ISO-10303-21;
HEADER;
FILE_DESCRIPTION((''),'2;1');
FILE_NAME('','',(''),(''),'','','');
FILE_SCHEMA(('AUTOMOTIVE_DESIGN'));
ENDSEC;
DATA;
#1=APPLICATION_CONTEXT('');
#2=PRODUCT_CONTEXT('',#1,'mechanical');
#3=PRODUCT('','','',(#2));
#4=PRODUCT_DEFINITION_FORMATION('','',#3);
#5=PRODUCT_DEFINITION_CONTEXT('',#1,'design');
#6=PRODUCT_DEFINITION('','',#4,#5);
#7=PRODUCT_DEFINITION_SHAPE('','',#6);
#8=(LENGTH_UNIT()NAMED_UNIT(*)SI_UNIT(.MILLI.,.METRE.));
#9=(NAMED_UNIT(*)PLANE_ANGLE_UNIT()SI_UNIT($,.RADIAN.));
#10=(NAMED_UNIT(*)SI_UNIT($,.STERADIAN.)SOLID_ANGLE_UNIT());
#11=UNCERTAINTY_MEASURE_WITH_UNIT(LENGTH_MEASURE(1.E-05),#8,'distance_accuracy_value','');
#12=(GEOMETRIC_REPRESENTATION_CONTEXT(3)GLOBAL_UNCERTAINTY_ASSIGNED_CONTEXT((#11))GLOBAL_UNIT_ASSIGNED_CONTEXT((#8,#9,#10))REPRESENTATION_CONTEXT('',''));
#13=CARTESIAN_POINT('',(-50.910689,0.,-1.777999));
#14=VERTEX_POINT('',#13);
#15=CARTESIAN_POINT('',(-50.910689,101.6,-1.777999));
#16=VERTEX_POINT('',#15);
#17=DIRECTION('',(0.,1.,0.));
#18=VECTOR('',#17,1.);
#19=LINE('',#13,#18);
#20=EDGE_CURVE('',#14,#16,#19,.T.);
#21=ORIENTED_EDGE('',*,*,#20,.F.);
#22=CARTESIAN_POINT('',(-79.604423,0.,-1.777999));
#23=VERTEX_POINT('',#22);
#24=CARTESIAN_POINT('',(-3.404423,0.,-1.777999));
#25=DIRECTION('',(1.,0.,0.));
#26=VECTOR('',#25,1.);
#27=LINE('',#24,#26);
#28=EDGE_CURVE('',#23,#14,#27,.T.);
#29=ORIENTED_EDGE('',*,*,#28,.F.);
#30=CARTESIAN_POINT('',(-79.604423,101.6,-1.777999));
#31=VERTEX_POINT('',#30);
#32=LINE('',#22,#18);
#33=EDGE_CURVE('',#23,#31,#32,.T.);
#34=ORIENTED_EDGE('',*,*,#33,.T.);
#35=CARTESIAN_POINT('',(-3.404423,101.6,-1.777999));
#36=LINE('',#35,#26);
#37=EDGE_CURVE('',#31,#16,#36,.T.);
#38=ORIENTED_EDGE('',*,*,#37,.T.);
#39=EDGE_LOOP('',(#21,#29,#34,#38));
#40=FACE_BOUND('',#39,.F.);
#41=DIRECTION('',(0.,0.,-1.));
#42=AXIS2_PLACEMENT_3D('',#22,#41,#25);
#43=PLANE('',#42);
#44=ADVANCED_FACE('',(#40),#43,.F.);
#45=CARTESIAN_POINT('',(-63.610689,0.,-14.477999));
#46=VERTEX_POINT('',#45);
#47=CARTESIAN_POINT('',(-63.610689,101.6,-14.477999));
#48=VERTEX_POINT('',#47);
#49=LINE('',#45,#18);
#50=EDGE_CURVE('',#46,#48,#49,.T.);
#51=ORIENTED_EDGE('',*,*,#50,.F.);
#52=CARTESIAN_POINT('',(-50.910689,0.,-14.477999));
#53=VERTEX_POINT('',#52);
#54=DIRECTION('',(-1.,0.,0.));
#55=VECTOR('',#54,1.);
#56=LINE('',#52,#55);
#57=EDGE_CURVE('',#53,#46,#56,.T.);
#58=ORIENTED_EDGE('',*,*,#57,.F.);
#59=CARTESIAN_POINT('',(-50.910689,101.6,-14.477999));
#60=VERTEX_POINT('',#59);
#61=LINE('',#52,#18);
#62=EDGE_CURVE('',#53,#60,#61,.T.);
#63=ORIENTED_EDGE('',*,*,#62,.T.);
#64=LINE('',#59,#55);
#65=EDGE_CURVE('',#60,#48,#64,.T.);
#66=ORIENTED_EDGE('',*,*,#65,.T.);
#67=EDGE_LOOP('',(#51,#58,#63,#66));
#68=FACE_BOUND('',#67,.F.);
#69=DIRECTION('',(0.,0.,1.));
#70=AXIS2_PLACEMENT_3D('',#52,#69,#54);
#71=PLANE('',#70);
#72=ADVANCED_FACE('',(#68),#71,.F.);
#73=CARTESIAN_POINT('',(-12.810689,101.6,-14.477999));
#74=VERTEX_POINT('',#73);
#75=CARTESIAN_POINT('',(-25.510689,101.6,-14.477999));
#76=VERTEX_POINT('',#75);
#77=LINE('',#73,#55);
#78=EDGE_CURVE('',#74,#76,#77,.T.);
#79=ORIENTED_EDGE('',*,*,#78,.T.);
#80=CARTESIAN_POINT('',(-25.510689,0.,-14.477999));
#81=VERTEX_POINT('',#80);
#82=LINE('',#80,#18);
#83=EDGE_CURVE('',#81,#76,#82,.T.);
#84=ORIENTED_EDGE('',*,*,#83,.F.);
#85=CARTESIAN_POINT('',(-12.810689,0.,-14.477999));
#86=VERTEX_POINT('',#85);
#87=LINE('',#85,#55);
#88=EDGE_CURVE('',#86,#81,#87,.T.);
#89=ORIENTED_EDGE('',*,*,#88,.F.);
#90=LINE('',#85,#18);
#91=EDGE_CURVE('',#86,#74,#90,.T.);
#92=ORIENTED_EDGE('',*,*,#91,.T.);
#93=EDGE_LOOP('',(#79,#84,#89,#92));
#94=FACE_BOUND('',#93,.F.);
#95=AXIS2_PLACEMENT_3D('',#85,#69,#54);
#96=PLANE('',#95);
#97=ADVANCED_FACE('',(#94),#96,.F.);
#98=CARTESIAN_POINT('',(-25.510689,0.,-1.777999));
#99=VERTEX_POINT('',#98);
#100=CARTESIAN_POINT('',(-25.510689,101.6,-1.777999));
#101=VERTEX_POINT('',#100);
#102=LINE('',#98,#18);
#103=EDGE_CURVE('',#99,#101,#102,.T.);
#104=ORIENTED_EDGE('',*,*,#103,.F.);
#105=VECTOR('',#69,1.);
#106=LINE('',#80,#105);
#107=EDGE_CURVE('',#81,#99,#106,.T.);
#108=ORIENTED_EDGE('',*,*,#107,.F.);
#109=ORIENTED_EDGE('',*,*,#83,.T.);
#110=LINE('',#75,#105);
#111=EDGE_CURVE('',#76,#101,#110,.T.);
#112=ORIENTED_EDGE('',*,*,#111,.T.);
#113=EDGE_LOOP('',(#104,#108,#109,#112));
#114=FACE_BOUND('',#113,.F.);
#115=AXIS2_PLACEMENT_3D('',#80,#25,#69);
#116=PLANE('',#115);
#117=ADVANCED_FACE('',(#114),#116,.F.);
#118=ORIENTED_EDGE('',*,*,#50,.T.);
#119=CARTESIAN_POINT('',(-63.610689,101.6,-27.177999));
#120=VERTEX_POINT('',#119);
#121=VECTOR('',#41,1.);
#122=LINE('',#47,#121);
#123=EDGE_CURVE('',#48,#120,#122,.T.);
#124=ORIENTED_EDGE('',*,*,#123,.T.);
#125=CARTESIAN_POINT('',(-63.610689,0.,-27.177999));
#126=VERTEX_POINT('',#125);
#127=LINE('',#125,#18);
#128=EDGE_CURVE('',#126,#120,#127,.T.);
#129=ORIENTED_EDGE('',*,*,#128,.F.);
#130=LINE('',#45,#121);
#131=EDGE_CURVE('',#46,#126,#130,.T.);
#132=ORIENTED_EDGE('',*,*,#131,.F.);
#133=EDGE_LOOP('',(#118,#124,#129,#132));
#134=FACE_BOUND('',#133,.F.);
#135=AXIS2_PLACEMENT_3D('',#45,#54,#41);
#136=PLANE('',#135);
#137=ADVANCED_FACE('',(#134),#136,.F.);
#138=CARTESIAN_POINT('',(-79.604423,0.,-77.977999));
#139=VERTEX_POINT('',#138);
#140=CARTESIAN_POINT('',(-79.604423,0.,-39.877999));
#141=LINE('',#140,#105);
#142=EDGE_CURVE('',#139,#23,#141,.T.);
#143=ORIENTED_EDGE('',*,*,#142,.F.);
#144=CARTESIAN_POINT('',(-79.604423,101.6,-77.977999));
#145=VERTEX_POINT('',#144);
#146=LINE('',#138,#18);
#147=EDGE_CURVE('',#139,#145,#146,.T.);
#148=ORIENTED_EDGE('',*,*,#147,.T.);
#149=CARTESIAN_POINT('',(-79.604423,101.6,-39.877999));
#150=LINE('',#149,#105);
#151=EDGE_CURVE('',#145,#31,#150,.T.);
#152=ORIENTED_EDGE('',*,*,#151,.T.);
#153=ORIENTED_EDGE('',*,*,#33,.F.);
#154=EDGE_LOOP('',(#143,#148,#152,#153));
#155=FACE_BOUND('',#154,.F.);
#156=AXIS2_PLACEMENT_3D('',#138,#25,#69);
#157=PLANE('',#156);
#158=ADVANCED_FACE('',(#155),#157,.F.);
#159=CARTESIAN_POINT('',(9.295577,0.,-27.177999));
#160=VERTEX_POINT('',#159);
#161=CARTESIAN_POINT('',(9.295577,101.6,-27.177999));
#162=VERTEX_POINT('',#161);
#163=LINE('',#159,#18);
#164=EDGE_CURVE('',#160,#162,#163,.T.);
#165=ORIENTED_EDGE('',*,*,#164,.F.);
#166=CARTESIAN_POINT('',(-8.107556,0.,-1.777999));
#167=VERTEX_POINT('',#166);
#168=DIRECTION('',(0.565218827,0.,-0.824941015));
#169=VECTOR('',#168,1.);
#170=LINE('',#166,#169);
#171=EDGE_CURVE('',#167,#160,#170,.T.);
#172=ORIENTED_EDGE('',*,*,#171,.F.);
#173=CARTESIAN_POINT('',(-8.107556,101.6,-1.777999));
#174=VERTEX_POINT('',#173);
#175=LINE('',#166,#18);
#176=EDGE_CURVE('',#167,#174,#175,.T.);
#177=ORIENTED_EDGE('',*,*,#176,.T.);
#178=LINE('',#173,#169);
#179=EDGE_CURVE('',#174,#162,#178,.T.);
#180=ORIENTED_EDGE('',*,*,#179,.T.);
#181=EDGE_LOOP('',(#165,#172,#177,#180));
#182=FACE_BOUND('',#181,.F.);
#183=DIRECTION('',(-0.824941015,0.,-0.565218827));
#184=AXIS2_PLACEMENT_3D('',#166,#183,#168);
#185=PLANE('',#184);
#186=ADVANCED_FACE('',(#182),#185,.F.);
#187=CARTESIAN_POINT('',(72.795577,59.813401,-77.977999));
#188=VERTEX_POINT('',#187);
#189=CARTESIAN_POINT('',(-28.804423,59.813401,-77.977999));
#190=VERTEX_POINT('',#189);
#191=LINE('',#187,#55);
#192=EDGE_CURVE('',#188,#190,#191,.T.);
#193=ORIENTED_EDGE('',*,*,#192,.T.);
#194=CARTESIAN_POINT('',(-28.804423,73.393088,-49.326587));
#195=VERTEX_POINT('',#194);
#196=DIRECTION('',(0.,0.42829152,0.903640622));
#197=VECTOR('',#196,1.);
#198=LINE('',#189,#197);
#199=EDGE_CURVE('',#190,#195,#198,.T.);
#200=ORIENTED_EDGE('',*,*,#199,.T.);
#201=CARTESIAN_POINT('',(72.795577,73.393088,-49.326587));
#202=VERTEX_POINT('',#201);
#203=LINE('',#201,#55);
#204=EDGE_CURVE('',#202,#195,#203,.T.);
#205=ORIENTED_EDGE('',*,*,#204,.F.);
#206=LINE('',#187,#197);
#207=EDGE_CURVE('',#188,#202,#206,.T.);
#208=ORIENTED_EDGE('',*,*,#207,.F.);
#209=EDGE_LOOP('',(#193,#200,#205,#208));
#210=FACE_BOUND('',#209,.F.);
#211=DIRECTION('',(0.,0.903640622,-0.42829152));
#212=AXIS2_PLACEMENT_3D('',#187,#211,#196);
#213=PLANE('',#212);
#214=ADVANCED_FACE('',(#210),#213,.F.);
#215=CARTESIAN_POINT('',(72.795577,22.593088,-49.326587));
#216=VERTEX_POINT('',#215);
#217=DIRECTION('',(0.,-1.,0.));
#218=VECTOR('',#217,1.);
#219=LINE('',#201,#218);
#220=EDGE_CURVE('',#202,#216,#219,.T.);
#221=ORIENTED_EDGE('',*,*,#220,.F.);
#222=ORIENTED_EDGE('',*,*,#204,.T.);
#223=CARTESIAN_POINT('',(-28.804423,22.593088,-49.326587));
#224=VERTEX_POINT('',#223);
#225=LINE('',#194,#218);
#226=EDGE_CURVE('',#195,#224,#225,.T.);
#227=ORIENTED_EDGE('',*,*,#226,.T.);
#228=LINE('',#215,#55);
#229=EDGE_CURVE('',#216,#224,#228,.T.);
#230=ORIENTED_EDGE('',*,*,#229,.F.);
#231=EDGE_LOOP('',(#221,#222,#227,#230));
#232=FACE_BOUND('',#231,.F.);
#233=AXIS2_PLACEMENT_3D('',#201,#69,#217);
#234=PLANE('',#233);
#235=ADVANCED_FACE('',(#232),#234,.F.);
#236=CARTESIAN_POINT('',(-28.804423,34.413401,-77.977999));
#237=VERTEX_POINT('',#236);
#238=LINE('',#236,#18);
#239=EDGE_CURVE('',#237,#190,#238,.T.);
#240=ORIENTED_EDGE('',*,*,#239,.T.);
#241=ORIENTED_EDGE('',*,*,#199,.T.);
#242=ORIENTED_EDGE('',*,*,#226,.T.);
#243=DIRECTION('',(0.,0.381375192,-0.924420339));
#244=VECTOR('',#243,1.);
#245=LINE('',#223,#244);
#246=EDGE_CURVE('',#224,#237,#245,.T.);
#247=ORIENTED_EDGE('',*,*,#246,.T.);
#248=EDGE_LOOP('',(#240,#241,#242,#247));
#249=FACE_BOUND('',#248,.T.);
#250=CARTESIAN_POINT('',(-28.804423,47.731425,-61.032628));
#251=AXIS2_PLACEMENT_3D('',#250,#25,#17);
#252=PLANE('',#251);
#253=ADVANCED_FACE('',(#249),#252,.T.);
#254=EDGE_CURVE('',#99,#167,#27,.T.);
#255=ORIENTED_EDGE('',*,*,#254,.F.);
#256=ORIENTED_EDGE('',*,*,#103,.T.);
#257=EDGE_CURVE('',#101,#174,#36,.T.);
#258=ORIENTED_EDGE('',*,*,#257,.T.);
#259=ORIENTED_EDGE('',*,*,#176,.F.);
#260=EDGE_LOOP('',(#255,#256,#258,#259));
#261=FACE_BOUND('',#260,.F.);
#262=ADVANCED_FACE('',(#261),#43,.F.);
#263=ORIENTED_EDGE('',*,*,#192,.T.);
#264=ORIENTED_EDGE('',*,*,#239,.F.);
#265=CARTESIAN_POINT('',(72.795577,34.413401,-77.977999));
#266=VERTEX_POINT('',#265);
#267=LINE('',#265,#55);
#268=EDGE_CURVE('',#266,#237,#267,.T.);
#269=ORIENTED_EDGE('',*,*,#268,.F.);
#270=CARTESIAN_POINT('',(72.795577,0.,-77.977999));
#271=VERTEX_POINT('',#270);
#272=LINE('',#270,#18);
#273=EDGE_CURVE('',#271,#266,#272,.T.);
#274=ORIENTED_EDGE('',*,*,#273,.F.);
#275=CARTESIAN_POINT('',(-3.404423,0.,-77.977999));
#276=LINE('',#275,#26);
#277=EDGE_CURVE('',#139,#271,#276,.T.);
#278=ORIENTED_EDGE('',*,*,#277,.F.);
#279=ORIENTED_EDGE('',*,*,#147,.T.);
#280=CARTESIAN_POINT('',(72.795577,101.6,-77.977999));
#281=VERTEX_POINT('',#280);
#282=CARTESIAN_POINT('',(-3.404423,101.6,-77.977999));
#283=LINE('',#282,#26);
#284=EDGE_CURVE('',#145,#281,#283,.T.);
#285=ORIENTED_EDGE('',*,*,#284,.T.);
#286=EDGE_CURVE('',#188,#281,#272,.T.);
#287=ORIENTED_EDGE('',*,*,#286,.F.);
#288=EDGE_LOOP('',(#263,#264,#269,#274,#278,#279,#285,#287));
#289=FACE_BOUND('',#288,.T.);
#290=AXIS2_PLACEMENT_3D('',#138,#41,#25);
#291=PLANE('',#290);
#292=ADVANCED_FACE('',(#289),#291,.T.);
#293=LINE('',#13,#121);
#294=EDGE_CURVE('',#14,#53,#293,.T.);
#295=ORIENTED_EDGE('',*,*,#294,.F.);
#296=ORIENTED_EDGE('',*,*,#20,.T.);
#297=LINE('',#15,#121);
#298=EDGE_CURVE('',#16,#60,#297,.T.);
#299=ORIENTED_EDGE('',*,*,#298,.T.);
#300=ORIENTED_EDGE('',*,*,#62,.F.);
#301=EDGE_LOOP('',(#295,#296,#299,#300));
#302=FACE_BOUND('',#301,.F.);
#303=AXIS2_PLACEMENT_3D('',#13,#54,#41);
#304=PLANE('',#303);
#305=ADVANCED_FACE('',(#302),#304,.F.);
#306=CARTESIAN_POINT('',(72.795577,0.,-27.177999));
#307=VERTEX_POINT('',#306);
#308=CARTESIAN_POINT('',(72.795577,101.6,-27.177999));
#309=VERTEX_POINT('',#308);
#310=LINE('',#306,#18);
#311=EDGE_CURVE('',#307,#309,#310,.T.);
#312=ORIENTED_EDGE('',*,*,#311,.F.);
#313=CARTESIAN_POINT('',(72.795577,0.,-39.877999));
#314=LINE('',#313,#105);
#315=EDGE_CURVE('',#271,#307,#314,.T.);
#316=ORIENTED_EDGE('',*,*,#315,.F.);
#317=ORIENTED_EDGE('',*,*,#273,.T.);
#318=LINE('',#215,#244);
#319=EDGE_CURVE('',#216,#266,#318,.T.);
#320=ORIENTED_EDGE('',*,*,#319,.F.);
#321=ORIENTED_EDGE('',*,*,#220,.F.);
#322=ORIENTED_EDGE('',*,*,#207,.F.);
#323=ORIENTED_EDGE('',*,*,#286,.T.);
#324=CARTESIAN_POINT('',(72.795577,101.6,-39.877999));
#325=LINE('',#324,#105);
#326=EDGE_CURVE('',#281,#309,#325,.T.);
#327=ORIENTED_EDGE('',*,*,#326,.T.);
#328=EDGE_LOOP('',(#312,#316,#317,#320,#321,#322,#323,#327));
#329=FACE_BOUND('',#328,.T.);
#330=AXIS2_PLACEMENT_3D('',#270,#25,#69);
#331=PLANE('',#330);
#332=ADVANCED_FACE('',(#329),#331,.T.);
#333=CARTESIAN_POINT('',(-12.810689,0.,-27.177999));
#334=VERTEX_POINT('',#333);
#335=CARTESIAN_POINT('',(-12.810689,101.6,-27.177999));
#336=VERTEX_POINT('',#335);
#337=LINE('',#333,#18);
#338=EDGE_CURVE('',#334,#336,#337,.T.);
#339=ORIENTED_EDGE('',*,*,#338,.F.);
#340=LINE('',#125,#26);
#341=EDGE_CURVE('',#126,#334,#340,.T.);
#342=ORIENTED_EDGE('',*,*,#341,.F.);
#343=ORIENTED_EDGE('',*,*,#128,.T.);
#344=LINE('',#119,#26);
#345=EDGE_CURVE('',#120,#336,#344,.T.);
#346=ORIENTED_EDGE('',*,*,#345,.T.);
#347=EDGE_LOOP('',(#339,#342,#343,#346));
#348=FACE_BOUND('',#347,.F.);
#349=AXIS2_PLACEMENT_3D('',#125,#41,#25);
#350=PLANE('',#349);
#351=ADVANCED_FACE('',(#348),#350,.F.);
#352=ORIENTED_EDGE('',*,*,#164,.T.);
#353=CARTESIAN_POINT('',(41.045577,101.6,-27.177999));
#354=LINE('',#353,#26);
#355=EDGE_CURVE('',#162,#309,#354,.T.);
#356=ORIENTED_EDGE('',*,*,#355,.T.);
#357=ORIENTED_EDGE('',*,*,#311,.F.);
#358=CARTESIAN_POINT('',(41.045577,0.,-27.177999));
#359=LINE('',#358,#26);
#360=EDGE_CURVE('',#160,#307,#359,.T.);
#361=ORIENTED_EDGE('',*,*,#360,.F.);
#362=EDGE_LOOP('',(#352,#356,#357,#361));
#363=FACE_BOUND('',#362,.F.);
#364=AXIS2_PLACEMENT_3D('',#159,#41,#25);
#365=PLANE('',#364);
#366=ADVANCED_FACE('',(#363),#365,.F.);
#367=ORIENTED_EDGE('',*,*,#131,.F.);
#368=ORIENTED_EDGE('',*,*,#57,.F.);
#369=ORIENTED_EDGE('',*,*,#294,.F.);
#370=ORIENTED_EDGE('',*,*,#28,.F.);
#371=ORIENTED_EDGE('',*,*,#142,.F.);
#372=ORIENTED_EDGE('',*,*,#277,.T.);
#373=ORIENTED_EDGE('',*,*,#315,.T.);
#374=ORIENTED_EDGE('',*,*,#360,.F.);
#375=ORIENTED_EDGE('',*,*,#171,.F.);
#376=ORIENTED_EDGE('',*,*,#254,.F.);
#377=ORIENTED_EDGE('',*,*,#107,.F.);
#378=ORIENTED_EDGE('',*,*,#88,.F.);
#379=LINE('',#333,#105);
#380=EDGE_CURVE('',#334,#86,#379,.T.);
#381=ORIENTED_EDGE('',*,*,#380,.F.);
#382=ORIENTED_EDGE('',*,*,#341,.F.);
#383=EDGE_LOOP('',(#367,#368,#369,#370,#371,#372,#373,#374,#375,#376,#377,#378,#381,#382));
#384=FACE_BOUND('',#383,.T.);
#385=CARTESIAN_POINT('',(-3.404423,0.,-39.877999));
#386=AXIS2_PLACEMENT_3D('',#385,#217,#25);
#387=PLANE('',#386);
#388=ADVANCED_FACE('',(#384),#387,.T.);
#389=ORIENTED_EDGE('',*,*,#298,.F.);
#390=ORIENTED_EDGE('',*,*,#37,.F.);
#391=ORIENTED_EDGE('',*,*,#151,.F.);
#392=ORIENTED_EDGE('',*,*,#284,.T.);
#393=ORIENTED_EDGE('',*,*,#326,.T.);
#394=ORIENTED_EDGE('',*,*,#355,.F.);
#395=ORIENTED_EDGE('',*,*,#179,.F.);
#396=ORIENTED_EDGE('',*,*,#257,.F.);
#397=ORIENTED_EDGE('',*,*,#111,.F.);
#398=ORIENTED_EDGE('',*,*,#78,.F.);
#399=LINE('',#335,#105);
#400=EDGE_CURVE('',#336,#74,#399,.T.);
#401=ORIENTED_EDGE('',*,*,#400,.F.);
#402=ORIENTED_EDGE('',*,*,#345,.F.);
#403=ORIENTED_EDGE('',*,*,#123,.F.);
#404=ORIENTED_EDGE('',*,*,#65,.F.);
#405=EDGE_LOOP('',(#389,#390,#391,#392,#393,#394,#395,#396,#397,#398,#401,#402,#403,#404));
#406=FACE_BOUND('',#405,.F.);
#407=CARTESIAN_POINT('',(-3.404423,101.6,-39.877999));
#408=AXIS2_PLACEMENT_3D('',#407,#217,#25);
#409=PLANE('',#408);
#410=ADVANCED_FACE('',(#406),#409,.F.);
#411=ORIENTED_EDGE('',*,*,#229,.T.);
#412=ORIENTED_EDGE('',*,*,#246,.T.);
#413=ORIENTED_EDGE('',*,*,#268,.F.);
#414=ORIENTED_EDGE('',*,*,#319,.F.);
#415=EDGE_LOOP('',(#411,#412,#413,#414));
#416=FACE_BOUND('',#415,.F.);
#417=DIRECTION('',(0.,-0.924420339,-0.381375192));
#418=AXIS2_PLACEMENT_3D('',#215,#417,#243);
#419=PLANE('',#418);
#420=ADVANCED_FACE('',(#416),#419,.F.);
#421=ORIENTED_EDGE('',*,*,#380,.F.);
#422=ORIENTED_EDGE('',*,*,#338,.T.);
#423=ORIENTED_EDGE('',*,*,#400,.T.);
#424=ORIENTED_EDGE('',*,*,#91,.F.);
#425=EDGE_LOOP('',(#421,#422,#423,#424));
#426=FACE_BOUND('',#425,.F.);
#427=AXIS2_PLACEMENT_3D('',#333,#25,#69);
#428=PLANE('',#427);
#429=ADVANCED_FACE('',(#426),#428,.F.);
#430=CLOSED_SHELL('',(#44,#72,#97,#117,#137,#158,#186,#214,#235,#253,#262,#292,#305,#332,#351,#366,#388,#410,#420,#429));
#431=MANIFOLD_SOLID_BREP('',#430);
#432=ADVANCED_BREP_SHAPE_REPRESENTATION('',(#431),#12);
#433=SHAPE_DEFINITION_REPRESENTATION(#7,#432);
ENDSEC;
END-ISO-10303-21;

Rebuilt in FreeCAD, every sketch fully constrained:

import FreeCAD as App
import Part
import Sketcher
Q = App.Units.Quantity


def add_polygon(sketch, points):
    """Adds a closed chain of lines whose ends are joined by coincident constraints."""
    first, n = sketch.GeometryCount, len(points)
    for a, b in zip(points, points[1:] + points[:1]):
        sketch.addGeometry(Part.LineSegment(App.Vector(*a, 0), App.Vector(*b, 0)), False)
    for i in range(n):
        sketch.addConstraint(Sketcher.Constraint("Coincident", first + i, 2, first + (i + 1) % n, 1))

doc = App.newDocument("Part")
body = doc.addObject("PartDesign::Body", "Body")

sketch1 = body.newObject("Sketcher::SketchObject", "Sketch")
sketch1.AttachmentSupport = (doc.getObject("XZ_Plane"), [""])
sketch1.MapMode = "FlatFace"
add_polygon(sketch1, [(-80, -2), (-80, -78), (73, -78), (73, -2)])
sketch1.addConstraint(Sketcher.Constraint("Vertical", 0))
sketch1.addConstraint(Sketcher.Constraint("Horizontal", 1))
sketch1.addConstraint(Sketcher.Constraint("Vertical", 2))
sketch1.addConstraint(Sketcher.Constraint("Horizontal", 3))
sketch1.addConstraint(Sketcher.Constraint("DistanceX", 1, 1, 1, 2, Q("6 in")))
sketch1.addConstraint(Sketcher.Constraint("DistanceY", 0, 2, 0, 1, Q("3 in")))
sketch1.addConstraint(Sketcher.Constraint("DistanceY", 0, 2, -1, 1, Q("3.07 in")))
sketch1.addConstraint(Sketcher.Constraint("DistanceX", 0, 2, -1, 1, 79.604423))
pad1 = body.newObject("PartDesign::Pad", "Pad")
pad1.Profile = sketch1
pad1.Length = Q("4 in")
pad1.Reversed = True

sketch2 = body.newObject("Sketcher::SketchObject", "Sketch001")
sketch2.AttachmentSupport = (doc.getObject("XZ_Plane"), [""])
sketch2.MapMode = "FlatFace"
add_polygon(sketch2, [(-26, -2), (-51, -2), (-51, -14), (-64, -14), (-64, -27), (-13, -27), (-13, -14), (-26, -14)])
sketch2.addConstraint(Sketcher.Constraint("Horizontal", 0))
sketch2.addConstraint(Sketcher.Constraint("Vertical", 1))
sketch2.addConstraint(Sketcher.Constraint("Horizontal", 2))
sketch2.addConstraint(Sketcher.Constraint("Vertical", 3))
sketch2.addConstraint(Sketcher.Constraint("Horizontal", 4))
sketch2.addConstraint(Sketcher.Constraint("Vertical", 5))
sketch2.addConstraint(Sketcher.Constraint("Horizontal", 6))
sketch2.addConstraint(Sketcher.Constraint("Vertical", 7))
sketch2.addConstraint(Sketcher.Constraint("Horizontal", 2, 2, 5, 2))
sketch2.addConstraint(Sketcher.Constraint("Equal", 2, 6))
sketch2.addConstraint(Sketcher.Constraint("Equal", 6, 1))
sketch2.addConstraint(Sketcher.Constraint("Equal", 1, 3))
sketch2.addConstraint(Sketcher.Constraint("DistanceX", 0, 2, 0, 1, Q("1 in")))
sketch2.addConstraint(Sketcher.Constraint("DistanceX", 4, 1, 4, 2, Q("2 in")))
sketch2.addConstraint(Sketcher.Constraint("DistanceY", 0, 2, -1, 1, Q("0.07 in")))
sketch2.addConstraint(Sketcher.Constraint("DistanceX", 0, 2, -1, 1, 50.910689))
pocket1 = body.newObject("PartDesign::Pocket", "Pocket")
pocket1.Profile = sketch2
pocket1.Length = Q("4 in")

sketch3 = body.newObject("Sketcher::SketchObject", "Sketch002")
sketch3.AttachmentSupport = (doc.getObject("YZ_Plane"), [""])
sketch3.MapMode = "FlatFace"
sketch3.AttachmentOffset = App.Placement(App.Vector(0, 0, 72.795577), App.Rotation())
add_polygon(sketch3, [(73, -49), (23, -49), (34, -78), (60, -78)])
sketch3.addConstraint(Sketcher.Constraint("Horizontal", 0))
sketch3.addConstraint(Sketcher.Constraint("Horizontal", 2))
sketch3.addConstraint(Sketcher.Constraint("DistanceX", 0, 2, 0, 1, Q("2 in")))
sketch3.addConstraint(Sketcher.Constraint("DistanceX", 2, 1, 2, 2, Q("1 in")))
sketch3.addConstraint(Sketcher.Constraint("DistanceY", 1, 2, -1, 1, Q("3.07 in")))
sketch3.addConstraint(Sketcher.Constraint("DistanceX", -1, 1, 1, 2, 34.413401))
sketch3.addConstraint(Sketcher.Constraint("DistanceX", -1, 1, 0, 2, 22.593088))
sketch3.addConstraint(Sketcher.Constraint("DistanceY", 1, 2, 0, 2, 28.651412))
pocket2 = body.newObject("PartDesign::Pocket", "Pocket001")
pocket2.Profile = sketch3
pocket2.Length = Q("4 in")

sketch4 = body.newObject("Sketcher::SketchObject", "Sketch003")
sketch4.AttachmentSupport = (doc.getObject("XZ_Plane"), [""])
sketch4.MapMode = "FlatFace"
add_polygon(sketch4, [(9, -2), (9, -27), (73, -27), (73, -2)])
sketch4.addConstraint(Sketcher.Constraint("Vertical", 0))
sketch4.addConstraint(Sketcher.Constraint("Horizontal", 1))
sketch4.addConstraint(Sketcher.Constraint("Vertical", 2))
sketch4.addConstraint(Sketcher.Constraint("Horizontal", 3))
sketch4.addConstraint(Sketcher.Constraint("DistanceY", 0, 2, 0, 1, Q("1 in")))
sketch4.addConstraint(Sketcher.Constraint("DistanceX", 1, 1, 1, 2, Q("2.5 in")))
sketch4.addConstraint(Sketcher.Constraint("DistanceY", 0, 2, -1, 1, Q("1.07 in")))
sketch4.addConstraint(Sketcher.Constraint("DistanceX", -1, 1, 0, 2, 9.295577))
pocket3 = body.newObject("PartDesign::Pocket", "Pocket002")
pocket3.Profile = sketch4
pocket3.Length = Q("4 in")

sketch5 = body.newObject("Sketcher::SketchObject", "Sketch004")
sketch5.AttachmentSupport = (doc.getObject("XZ_Plane"), [""])
sketch5.MapMode = "FlatFace"
add_polygon(sketch5, [(9, -2), (-8, -2), (9, -27)])
sketch5.addConstraint(Sketcher.Constraint("Horizontal", 0))
sketch5.addConstraint(Sketcher.Constraint("Vertical", 2))
sketch5.addConstraint(Sketcher.Constraint("DistanceY", 2, 1, 2, 2, Q("1 in")))
sketch5.addConstraint(Sketcher.Constraint("DistanceY", 0, 2, -1, 1, Q("0.07 in")))
sketch5.addConstraint(Sketcher.Constraint("Distance", 1, 30.79008))
sketch5.addConstraint(Sketcher.Constraint("DistanceX", 0, 2, -1, 1, 8.107556))
pocket4 = body.newObject("PartDesign::Pocket", "Pocket003")
pocket4.Profile = sketch5
pocket4.Length = Q("4 in")

doc.recompute()
